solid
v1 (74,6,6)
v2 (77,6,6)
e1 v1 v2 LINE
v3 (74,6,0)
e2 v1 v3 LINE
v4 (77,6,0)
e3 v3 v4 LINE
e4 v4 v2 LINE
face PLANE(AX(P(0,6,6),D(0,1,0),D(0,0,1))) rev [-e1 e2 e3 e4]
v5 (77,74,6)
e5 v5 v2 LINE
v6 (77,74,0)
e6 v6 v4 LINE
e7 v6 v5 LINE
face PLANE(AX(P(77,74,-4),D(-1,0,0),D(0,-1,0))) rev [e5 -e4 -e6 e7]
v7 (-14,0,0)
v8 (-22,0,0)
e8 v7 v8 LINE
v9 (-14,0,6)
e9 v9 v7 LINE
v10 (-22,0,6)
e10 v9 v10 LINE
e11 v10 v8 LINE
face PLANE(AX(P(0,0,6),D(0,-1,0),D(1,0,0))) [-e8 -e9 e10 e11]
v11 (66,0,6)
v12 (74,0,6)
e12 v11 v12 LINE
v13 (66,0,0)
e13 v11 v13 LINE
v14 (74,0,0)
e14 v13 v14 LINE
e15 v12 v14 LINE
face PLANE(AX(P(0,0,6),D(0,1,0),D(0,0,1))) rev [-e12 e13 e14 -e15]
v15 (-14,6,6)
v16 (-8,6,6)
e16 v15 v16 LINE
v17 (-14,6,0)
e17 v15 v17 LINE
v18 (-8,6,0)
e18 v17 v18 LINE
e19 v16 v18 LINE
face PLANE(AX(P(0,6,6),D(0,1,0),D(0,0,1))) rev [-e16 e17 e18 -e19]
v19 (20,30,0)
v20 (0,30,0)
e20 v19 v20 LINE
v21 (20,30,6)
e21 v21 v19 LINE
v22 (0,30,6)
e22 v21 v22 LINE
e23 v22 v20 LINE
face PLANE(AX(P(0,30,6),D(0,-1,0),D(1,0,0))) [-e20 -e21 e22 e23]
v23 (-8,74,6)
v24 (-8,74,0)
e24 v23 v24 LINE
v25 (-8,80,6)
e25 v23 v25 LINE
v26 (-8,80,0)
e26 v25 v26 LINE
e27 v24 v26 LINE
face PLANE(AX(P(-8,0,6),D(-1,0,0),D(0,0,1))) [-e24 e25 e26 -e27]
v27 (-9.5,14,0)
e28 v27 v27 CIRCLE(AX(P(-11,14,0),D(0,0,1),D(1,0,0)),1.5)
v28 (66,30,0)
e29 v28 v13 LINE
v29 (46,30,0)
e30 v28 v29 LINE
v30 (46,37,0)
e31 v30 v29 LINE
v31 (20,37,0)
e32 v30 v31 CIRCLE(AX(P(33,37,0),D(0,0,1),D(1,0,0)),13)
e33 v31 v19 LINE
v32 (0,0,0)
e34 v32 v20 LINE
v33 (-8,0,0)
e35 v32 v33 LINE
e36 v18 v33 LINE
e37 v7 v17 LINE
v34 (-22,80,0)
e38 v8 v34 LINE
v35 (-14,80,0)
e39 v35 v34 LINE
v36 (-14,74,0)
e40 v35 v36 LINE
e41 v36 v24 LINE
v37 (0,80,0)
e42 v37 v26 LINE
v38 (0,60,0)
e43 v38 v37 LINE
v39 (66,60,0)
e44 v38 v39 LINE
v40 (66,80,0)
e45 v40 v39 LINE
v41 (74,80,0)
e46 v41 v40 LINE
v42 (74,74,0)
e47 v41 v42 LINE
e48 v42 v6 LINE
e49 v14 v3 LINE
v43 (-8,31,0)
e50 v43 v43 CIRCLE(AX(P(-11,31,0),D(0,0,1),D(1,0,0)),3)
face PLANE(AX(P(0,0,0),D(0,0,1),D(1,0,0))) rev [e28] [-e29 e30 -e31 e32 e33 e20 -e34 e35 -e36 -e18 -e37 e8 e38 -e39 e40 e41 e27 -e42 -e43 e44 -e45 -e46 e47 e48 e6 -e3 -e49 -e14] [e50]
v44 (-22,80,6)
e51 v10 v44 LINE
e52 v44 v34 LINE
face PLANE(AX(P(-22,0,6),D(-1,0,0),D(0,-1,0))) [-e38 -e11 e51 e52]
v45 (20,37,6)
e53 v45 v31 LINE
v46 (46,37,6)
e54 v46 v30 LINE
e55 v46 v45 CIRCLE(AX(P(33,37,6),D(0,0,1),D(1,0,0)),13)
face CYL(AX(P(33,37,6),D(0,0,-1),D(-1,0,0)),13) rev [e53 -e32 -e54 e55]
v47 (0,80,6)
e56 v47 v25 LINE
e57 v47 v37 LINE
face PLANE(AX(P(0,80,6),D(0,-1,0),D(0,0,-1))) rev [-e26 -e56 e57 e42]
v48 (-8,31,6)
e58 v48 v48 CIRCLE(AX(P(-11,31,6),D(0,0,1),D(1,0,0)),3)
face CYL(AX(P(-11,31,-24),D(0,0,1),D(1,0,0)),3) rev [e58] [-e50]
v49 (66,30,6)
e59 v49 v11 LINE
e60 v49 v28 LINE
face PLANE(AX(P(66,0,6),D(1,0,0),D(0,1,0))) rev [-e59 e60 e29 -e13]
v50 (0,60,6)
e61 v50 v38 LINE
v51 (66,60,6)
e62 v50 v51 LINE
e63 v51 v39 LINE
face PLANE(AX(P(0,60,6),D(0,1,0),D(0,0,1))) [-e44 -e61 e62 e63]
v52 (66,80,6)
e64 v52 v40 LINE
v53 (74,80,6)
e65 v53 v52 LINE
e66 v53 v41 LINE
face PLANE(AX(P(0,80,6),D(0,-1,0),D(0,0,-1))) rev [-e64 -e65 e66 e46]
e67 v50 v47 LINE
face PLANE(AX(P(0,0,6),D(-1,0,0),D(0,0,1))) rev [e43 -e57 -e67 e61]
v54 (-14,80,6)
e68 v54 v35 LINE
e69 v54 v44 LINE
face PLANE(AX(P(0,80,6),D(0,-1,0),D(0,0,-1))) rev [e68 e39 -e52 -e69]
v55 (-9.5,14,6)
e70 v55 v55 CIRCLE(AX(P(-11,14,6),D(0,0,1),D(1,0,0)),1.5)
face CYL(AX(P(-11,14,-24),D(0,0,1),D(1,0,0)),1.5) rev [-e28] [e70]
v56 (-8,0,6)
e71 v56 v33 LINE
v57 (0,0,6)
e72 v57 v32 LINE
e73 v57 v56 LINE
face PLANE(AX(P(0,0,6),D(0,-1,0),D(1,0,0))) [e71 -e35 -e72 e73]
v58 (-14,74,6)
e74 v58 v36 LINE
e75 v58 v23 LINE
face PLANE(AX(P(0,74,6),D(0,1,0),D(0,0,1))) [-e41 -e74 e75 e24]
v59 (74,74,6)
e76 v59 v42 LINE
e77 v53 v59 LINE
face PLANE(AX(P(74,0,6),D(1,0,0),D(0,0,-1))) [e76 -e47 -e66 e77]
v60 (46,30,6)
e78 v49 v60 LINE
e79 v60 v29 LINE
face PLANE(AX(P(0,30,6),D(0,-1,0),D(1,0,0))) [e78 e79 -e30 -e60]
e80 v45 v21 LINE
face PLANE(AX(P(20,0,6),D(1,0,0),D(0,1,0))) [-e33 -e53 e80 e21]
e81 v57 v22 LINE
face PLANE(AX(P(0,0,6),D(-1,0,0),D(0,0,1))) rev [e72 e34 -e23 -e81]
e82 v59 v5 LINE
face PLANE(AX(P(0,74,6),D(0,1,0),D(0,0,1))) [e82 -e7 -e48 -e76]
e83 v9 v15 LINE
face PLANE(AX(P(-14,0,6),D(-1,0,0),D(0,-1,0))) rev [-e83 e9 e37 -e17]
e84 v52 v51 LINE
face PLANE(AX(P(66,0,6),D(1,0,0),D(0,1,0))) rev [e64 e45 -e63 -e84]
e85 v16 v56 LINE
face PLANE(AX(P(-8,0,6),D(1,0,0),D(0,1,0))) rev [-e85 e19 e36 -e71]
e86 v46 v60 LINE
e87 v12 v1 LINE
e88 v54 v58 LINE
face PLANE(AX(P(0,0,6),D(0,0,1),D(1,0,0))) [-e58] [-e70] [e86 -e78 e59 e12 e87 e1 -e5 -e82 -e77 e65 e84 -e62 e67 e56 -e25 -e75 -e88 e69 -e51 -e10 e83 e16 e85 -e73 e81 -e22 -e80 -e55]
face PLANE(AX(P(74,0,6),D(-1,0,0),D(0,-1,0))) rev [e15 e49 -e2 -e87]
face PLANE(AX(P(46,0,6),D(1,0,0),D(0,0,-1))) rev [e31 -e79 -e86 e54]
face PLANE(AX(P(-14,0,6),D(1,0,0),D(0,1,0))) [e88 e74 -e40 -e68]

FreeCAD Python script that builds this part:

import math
import FreeCAD as App
import Part
import Sketcher
from FreeCAD import Vector


def add_polygon(sketch, points):
    """Adds a closed chain of lines whose ends are joined by coincident constraints."""
    first, n = sketch.GeometryCount, len(points)
    for a, b in zip(points, points[1:] + points[:1]):
        sketch.addGeometry(Part.LineSegment(App.Vector(*a, 0), App.Vector(*b, 0)), False)
    for i in range(n):
        sketch.addConstraint(Sketcher.Constraint("Coincident", first + i, 2, first + (i + 1) % n, 1))

doc = App.newDocument("Part")
params = doc.addObject("Spreadsheet::Sheet", "Params")
for row, (alias, value) in enumerate([
    ("sketch1_radius", "13 mm"),
    ("sketch1_width", "8 mm"),
    ("sketch1_width2", "6 mm"),
    ("sketch1_width3", "20 mm"),
    ("sketch1_height", "80 mm"),
    ("pad1_length", "6 mm"),
    ("sketch2_diameter", "6 mm"),
    ("sketch2_diameter2", "3 mm"),
    ("pocket1_length", "30 mm"),
    ("sketch3_width", "3 mm"),
    ("sketch3_width2", "8 mm"),
    ("sketch3_height", "68 mm"),
    ("sketch3_height2", "6 mm"),
    ("pocket2_length", "10 mm"),
], start=1):
    params.set(f"A{row}", alias)
    params.set(f"B{row}", "=" + value)
    params.setAlias(f"B{row}", alias)

body = doc.addObject("PartDesign::Body", "Body")

# Sketch on XY plane
sketch1 = doc.addObject("Sketcher::SketchObject", "Sketch")
body.addObject(sketch1)
sketch1.AttachmentSupport = (doc.XY_Plane, [""])
sketch1.MapMode = "FlatFace"
sketch1.addGeometry(Part.LineSegment(Vector(-14, 74, 0), Vector(-14, 80, 0)), False)
sketch1.addGeometry(Part.LineSegment(Vector(-14, 80, 0), Vector(-22, 80, 0)), False)
sketch1.addGeometry(Part.LineSegment(Vector(-22, 80, 0), Vector(-22, 0, 0)), False)
sketch1.addGeometry(Part.LineSegment(Vector(-22, 0, 0), Vector(-14, 0, 0)), False)
sketch1.addGeometry(Part.LineSegment(Vector(-14, 0, 0), Vector(-14, 6, 0)), False)
sketch1.addGeometry(Part.LineSegment(Vector(-14, 6, 0), Vector(-8, 6, 0)), False)
sketch1.addGeometry(Part.LineSegment(Vector(-8, 6, 0), Vector(-8, 0, 0)), False)
sketch1.addGeometry(Part.LineSegment(Vector(-8, 0, 0), Vector(0, 0, 0)), False)
sketch1.addGeometry(Part.LineSegment(Vector(0, 0, 0), Vector(0, 30, 0)), False)
sketch1.addGeometry(Part.LineSegment(Vector(0, 30, 0), Vector(20, 30, 0)), False)
sketch1.addGeometry(Part.LineSegment(Vector(20, 30, 0), Vector(20, 37, 0)), False)
sketch1.addGeometry(Part.ArcOfCircle(Part.Circle(Vector(33, 37, 0), Vector(0, 0, 1), 13), math.radians(0), math.radians(180)), False)
sketch1.addGeometry(Part.LineSegment(Vector(46, 37, 0), Vector(46, 30, 0)), False)
sketch1.addGeometry(Part.LineSegment(Vector(46, 30, 0), Vector(66, 30, 0)), False)
sketch1.addGeometry(Part.LineSegment(Vector(66, 30, 0), Vector(66, 0, 0)), False)
sketch1.addGeometry(Part.LineSegment(Vector(66, 0, 0), Vector(74, 0, 0)), False)
sketch1.addGeometry(Part.LineSegment(Vector(74, 0, 0), Vector(74, 6, 0)), False)
sketch1.addGeometry(Part.LineSegment(Vector(74, 6, 0), Vector(80, 6, 0)), False)
sketch1.addGeometry(Part.LineSegment(Vector(80, 6, 0), Vector(80, 0, 0)), False)
sketch1.addGeometry(Part.LineSegment(Vector(80, 0, 0), Vector(88, 0, 0)), False)
sketch1.addGeometry(Part.LineSegment(Vector(88, 0, 0), Vector(88, 80, 0)), False)
sketch1.addGeometry(Part.LineSegment(Vector(88, 80, 0), Vector(80, 80, 0)), False)
sketch1.addGeometry(Part.LineSegment(Vector(80, 80, 0), Vector(80, 74, 0)), False)
sketch1.addGeometry(Part.LineSegment(Vector(80, 74, 0), Vector(74, 74, 0)), False)
sketch1.addGeometry(Part.LineSegment(Vector(74, 74, 0), Vector(74, 80, 0)), False)
sketch1.addGeometry(Part.LineSegment(Vector(74, 80, 0), Vector(66, 80, 0)), False)
sketch1.addGeometry(Part.LineSegment(Vector(66, 80, 0), Vector(66, 60, 0)), False)
sketch1.addGeometry(Part.LineSegment(Vector(66, 60, 0), Vector(0, 60, 0)), False)
sketch1.addGeometry(Part.LineSegment(Vector(0, 60, 0), Vector(0, 80, 0)), False)
sketch1.addGeometry(Part.LineSegment(Vector(0, 80, 0), Vector(-8, 80, 0)), False)
sketch1.addGeometry(Part.LineSegment(Vector(-8, 80, 0), Vector(-8, 74, 0)), False)
sketch1.addGeometry(Part.LineSegment(Vector(-8, 74, 0), Vector(-14, 74, 0)), False)
sketch1.addConstraint(Sketcher.Constraint("Coincident", 0, 2, 1, 1))
sketch1.addConstraint(Sketcher.Constraint("Coincident", 1, 2, 2, 1))
sketch1.addConstraint(Sketcher.Constraint("Coincident", 2, 2, 3, 1))
sketch1.addConstraint(Sketcher.Constraint("Coincident", 3, 2, 4, 1))
sketch1.addConstraint(Sketcher.Constraint("Coincident", 4, 2, 5, 1))
sketch1.addConstraint(Sketcher.Constraint("Coincident", 5, 2, 6, 1))
sketch1.addConstraint(Sketcher.Constraint("Coincident", 6, 2, 7, 1))
sketch1.addConstraint(Sketcher.Constraint("Coincident", 7, 2, 8, 1))
sketch1.addConstraint(Sketcher.Constraint("Coincident", 8, 2, 9, 1))
sketch1.addConstraint(Sketcher.Constraint("Coincident", 9, 2, 10, 1))
sketch1.addConstraint(Sketcher.Constraint("Tangent", 10, 2, 11, 2))
sketch1.addConstraint(Sketcher.Constraint("Tangent", 11, 1, 12, 1))
sketch1.addConstraint(Sketcher.Constraint("Coincident", 12, 2, 13, 1))
sketch1.addConstraint(Sketcher.Constraint("Coincident", 13, 2, 14, 1))
sketch1.addConstraint(Sketcher.Constraint("Coincident", 14, 2, 15, 1))
sketch1.addConstraint(Sketcher.Constraint("Coincident", 15, 2, 16, 1))
sketch1.addConstraint(Sketcher.Constraint("Coincident", 16, 2, 17, 1))
sketch1.addConstraint(Sketcher.Constraint("Coincident", 17, 2, 18, 1))
sketch1.addConstraint(Sketcher.Constraint("Coincident", 18, 2, 19, 1))
sketch1.addConstraint(Sketcher.Constraint("Coincident", 19, 2, 20, 1))
sketch1.addConstraint(Sketcher.Constraint("Coincident", 20, 2, 21, 1))
sketch1.addConstraint(Sketcher.Constraint("Coincident", 21, 2, 22, 1))
sketch1.addConstraint(Sketcher.Constraint("Coincident", 22, 2, 23, 1))
sketch1.addConstraint(Sketcher.Constraint("Coincident", 23, 2, 24, 1))
sketch1.addConstraint(Sketcher.Constraint("Coincident", 24, 2, 25, 1))
sketch1.addConstraint(Sketcher.Constraint("Coincident", 25, 2, 26, 1))
sketch1.addConstraint(Sketcher.Constraint("Coincident", 26, 2, 27, 1))
sketch1.addConstraint(Sketcher.Constraint("Coincident", 27, 2, 28, 1))
sketch1.addConstraint(Sketcher.Constraint("Coincident", 28, 2, 29, 1))
sketch1.addConstraint(Sketcher.Constraint("Coincident", 29, 2, 30, 1))
sketch1.addConstraint(Sketcher.Constraint("Coincident", 30, 2, 31, 1))
sketch1.addConstraint(Sketcher.Constraint("Coincident", 31, 2, 0, 1))
sketch1.addConstraint(Sketcher.Constraint("Vertical", 0))
sketch1.addConstraint(Sketcher.Constraint("Horizontal", 1))
sketch1.addConstraint(Sketcher.Constraint("Vertical", 2))
sketch1.addConstraint(Sketcher.Constraint("Horizontal", 3))
sketch1.addConstraint(Sketcher.Constraint("Vertical", 4))
sketch1.addConstraint(Sketcher.Constraint("Horizontal", 5))
sketch1.addConstraint(Sketcher.Constraint("Vertical", 6))
sketch1.addConstraint(Sketcher.Constraint("Horizontal", 7))
sketch1.addConstraint(Sketcher.Constraint("Vertical", 8))
sketch1.addConstraint(Sketcher.Constraint("Horizontal", 9))
sketch1.addConstraint(Sketcher.Constraint("Vertical", 10))
sketch1.addConstraint(Sketcher.Constraint("Vertical", 12))
sketch1.addConstraint(Sketcher.Constraint("Horizontal", 13))
sketch1.addConstraint(Sketcher.Constraint("Vertical", 14))
sketch1.addConstraint(Sketcher.Constraint("Horizontal", 15))
sketch1.addConstraint(Sketcher.Constraint("Vertical", 16))
sketch1.addConstraint(Sketcher.Constraint("Horizontal", 17))
sketch1.addConstraint(Sketcher.Constraint("Vertical", 18))
sketch1.addConstraint(Sketcher.Constraint("Horizontal", 19))
sketch1.addConstraint(Sketcher.Constraint("Vertical", 20))
sketch1.addConstraint(Sketcher.Constraint("Horizontal", 21))
sketch1.addConstraint(Sketcher.Constraint("Vertical", 22))
sketch1.addConstraint(Sketcher.Constraint("Horizontal", 23))
sketch1.addConstraint(Sketcher.Constraint("Vertical", 24))
sketch1.addConstraint(Sketcher.Constraint("Horizontal", 25))
sketch1.addConstraint(Sketcher.Constraint("Vertical", 26))
sketch1.addConstraint(Sketcher.Constraint("Horizontal", 27))
sketch1.addConstraint(Sketcher.Constraint("Vertical", 28))
sketch1.addConstraint(Sketcher.Constraint("Horizontal", 29))
sketch1.addConstraint(Sketcher.Constraint("Vertical", 30))
sketch1.addConstraint(Sketcher.Constraint("Horizontal", 31))
sketch1.addConstraint(Sketcher.Constraint("Coincident", 7, 2, -1, 1))
sketch1.addConstraint(Sketcher.Constraint("PointOnObject", 2, 2, -1))
sketch1.addConstraint(Sketcher.Constraint("PointOnObject", 14, 2, -1))
sketch1.addConstraint(Sketcher.Constraint("PointOnObject", 18, 2, -1))
sketch1.addConstraint(Sketcher.Constraint("PointOnObject", 27, 2, -2))
sketch1.addConstraint(Sketcher.Constraint("Horizontal", 9, 2, 12, 2))
sketch1.addConstraint(Sketcher.Constraint("Horizontal", 5, 2, 16, 2))
sketch1.addConstraint(Sketcher.Constraint("Horizontal", 1, 2, 20, 2))
sketch1.addConstraint(Sketcher.Constraint("Horizontal", 21, 2, 24, 2))
sketch1.addConstraint(Sketcher.Constraint("Horizontal", 25, 2, 28, 2))
sketch1.addConstraint(Sketcher.Constraint("Horizontal", 23, 2, 30, 2))
sketch1.addConstraint(Sketcher.Constraint("Vertical", 0, 2, 3, 2))
sketch1.addConstraint(Sketcher.Constraint("Vertical", 18, 2, 21, 2))
sketch1.addConstraint(Sketcher.Constraint("Vertical", 16, 2, 23, 2))
sketch1.addConstraint(Sketcher.Constraint("Vertical", 14, 2, 25, 2))
sketch1.addConstraint(Sketcher.Constraint("Vertical", 6, 2, 29, 2))
sketch1.addConstraint(Sketcher.Constraint("Equal", 3, 7))
sketch1.addConstraint(Sketcher.Constraint("Equal", 9, 13))
sketch1.addConstraint(Sketcher.Constraint("Equal", 7, 15))
sketch1.addConstraint(Sketcher.Constraint("Equal", 5, 17))
sketch1.addConstraint(Sketcher.Constraint("Equal", 15, 19))
sketch1.addConstraint(Sketcher.Constraint("Equal", 31, 0))
sketch1.addConstraint(Sketcher.Constraint("Equal", 0, 4))
sketch1.addConstraint(Sketcher.Constraint("Equal", 13, 26))
sketch1.addConstraint(Sketcher.Constraint("Radius", 11, 13.0))
sketch1.addConstraint(Sketcher.Constraint("DistanceX", 1, 2, 1, 1, 8.0))
sketch1.addConstraint(Sketcher.Constraint("DistanceX", 5, 1, 5, 2, 6.0))
sketch1.addConstraint(Sketcher.Constraint("DistanceX", 9, 1, 9, 2, 20.0))
sketch1.addConstraint(Sketcher.Constraint("DistanceY", 2, 2, 2, 1, 80.0))
sketch1.addConstraint(Sketcher.Constraint("DistanceY", 8, 1, 8, 2, 30.0))
sketch1.addConstraint(Sketcher.Constraint("DistanceY", 10, 1, 10, 2, 7.0))
sketch1.setExpression("Constraints[87]", "Params.sketch1_radius")
sketch1.setExpression("Constraints[88]", "Params.sketch1_width")
sketch1.setExpression("Constraints[89]", "Params.sketch1_width2")
sketch1.setExpression("Constraints[90]", "Params.sketch1_width3")
sketch1.setExpression("Constraints[91]", "Params.sketch1_height")
pad1 = doc.addObject("PartDesign::Pad", "Pad")
body.addObject(pad1)
pad1.Profile = sketch1
pad1.setExpression("Length", "Params.pad1_length")

# Sketch on XY plane
sketch2 = doc.addObject("Sketcher::SketchObject", "Sketch001")
body.addObject(sketch2)
sketch2.AttachmentSupport = (doc.XY_Plane, [""])
sketch2.MapMode = "FlatFace"
sketch2.AttachmentOffset = App.Placement(Vector(0, 0, 6), App.Rotation())
sketch2.addGeometry(Part.Circle(Vector(-11, 31, 0), Vector(0, 0, 1), 3), False)
sketch2.addGeometry(Part.Circle(Vector(-11, 14, 0), Vector(0, 0, 1), 1.5), False)
sketch2.addConstraint(Sketcher.Constraint("Vertical", 0, 3, 1, 3))
sketch2.addConstraint(Sketcher.Constraint("Diameter", 0, 6.0))
sketch2.addConstraint(Sketcher.Constraint("Diameter", 1, 3.0))
sketch2.addConstraint(Sketcher.Constraint("DistanceX", 0, 3, -1, 1, 11.0))
sketch2.addConstraint(Sketcher.Constraint("DistanceY", -1, 1, 0, 3, 31.0))
sketch2.addConstraint(Sketcher.Constraint("DistanceY", -1, 1, 1, 3, 14.0))
sketch2.setExpression("Constraints[1]", "Params.sketch2_diameter")
sketch2.setExpression("Constraints[2]", "Params.sketch2_diameter2")
pocket1 = doc.addObject("PartDesign::Pocket", "Pocket")
body.addObject(pocket1)
pocket1.Profile = sketch2
pocket1.setExpression("Length", "Params.pocket1_length")

# Sketch on XY plane
sketch3 = doc.addObject("Sketcher::SketchObject", "Sketch002")
body.addObject(sketch3)
sketch3.AttachmentSupport = (doc.XY_Plane, [""])
sketch3.MapMode = "FlatFace"
sketch3.AttachmentOffset = App.Placement(Vector(0, 0, 6), App.Rotation())
add_polygon(sketch3, [(77, 74), (77, 6), (80, 6), (80, 0), (88, 0), (88, 80), (80, 80), (80, 74)])  # lines 0-7
sketch3.addConstraint(Sketcher.Constraint("Vertical", 0))
sketch3.addConstraint(Sketcher.Constraint("Horizontal", 1))
sketch3.addConstraint(Sketcher.Constraint("Vertical", 2))
sketch3.addConstraint(Sketcher.Constraint("Horizontal", 3))
sketch3.addConstraint(Sketcher.Constraint("Vertical", 4))
sketch3.addConstraint(Sketcher.Constraint("Horizontal", 5))
sketch3.addConstraint(Sketcher.Constraint("Vertical", 6))
sketch3.addConstraint(Sketcher.Constraint("Horizontal", 7))
sketch3.addConstraint(Sketcher.Constraint("PointOnObject", 2, 2, -1))
sketch3.addConstraint(Sketcher.Constraint("Vertical", 2, 2, 5, 2))
sketch3.addConstraint(Sketcher.Constraint("Equal", 2, 6))
sketch3.addConstraint(Sketcher.Constraint("DistanceX", 1, 1, 1, 2, 3.0))
sketch3.addConstraint(Sketcher.Constraint("DistanceX", 3, 1, 3, 2, 8.0))
sketch3.addConstraint(Sketcher.Constraint("DistanceY", 0, 2, 0, 1, 68.0))
sketch3.addConstraint(Sketcher.Constraint("DistanceY", 2, 2, 2, 1, 6.0))
sketch3.addConstraint(Sketcher.Constraint("DistanceX", -1, 1, 0, 2, 77.0))
sketch3.setExpression("Constraints[19]", "Params.sketch3_width")
sketch3.setExpression("Constraints[20]", "Params.sketch3_width2")
sketch3.setExpression("Constraints[21]", "Params.sketch3_height")
sketch3.setExpression("Constraints[22]", "Params.sketch3_height2")
pocket2 = doc.addObject("PartDesign::Pocket", "Pocket001")
body.addObject(pocket2)
pocket2.Profile = sketch3
pocket2.setExpression("Length", "Params.pocket2_length")

doc.recompute()
